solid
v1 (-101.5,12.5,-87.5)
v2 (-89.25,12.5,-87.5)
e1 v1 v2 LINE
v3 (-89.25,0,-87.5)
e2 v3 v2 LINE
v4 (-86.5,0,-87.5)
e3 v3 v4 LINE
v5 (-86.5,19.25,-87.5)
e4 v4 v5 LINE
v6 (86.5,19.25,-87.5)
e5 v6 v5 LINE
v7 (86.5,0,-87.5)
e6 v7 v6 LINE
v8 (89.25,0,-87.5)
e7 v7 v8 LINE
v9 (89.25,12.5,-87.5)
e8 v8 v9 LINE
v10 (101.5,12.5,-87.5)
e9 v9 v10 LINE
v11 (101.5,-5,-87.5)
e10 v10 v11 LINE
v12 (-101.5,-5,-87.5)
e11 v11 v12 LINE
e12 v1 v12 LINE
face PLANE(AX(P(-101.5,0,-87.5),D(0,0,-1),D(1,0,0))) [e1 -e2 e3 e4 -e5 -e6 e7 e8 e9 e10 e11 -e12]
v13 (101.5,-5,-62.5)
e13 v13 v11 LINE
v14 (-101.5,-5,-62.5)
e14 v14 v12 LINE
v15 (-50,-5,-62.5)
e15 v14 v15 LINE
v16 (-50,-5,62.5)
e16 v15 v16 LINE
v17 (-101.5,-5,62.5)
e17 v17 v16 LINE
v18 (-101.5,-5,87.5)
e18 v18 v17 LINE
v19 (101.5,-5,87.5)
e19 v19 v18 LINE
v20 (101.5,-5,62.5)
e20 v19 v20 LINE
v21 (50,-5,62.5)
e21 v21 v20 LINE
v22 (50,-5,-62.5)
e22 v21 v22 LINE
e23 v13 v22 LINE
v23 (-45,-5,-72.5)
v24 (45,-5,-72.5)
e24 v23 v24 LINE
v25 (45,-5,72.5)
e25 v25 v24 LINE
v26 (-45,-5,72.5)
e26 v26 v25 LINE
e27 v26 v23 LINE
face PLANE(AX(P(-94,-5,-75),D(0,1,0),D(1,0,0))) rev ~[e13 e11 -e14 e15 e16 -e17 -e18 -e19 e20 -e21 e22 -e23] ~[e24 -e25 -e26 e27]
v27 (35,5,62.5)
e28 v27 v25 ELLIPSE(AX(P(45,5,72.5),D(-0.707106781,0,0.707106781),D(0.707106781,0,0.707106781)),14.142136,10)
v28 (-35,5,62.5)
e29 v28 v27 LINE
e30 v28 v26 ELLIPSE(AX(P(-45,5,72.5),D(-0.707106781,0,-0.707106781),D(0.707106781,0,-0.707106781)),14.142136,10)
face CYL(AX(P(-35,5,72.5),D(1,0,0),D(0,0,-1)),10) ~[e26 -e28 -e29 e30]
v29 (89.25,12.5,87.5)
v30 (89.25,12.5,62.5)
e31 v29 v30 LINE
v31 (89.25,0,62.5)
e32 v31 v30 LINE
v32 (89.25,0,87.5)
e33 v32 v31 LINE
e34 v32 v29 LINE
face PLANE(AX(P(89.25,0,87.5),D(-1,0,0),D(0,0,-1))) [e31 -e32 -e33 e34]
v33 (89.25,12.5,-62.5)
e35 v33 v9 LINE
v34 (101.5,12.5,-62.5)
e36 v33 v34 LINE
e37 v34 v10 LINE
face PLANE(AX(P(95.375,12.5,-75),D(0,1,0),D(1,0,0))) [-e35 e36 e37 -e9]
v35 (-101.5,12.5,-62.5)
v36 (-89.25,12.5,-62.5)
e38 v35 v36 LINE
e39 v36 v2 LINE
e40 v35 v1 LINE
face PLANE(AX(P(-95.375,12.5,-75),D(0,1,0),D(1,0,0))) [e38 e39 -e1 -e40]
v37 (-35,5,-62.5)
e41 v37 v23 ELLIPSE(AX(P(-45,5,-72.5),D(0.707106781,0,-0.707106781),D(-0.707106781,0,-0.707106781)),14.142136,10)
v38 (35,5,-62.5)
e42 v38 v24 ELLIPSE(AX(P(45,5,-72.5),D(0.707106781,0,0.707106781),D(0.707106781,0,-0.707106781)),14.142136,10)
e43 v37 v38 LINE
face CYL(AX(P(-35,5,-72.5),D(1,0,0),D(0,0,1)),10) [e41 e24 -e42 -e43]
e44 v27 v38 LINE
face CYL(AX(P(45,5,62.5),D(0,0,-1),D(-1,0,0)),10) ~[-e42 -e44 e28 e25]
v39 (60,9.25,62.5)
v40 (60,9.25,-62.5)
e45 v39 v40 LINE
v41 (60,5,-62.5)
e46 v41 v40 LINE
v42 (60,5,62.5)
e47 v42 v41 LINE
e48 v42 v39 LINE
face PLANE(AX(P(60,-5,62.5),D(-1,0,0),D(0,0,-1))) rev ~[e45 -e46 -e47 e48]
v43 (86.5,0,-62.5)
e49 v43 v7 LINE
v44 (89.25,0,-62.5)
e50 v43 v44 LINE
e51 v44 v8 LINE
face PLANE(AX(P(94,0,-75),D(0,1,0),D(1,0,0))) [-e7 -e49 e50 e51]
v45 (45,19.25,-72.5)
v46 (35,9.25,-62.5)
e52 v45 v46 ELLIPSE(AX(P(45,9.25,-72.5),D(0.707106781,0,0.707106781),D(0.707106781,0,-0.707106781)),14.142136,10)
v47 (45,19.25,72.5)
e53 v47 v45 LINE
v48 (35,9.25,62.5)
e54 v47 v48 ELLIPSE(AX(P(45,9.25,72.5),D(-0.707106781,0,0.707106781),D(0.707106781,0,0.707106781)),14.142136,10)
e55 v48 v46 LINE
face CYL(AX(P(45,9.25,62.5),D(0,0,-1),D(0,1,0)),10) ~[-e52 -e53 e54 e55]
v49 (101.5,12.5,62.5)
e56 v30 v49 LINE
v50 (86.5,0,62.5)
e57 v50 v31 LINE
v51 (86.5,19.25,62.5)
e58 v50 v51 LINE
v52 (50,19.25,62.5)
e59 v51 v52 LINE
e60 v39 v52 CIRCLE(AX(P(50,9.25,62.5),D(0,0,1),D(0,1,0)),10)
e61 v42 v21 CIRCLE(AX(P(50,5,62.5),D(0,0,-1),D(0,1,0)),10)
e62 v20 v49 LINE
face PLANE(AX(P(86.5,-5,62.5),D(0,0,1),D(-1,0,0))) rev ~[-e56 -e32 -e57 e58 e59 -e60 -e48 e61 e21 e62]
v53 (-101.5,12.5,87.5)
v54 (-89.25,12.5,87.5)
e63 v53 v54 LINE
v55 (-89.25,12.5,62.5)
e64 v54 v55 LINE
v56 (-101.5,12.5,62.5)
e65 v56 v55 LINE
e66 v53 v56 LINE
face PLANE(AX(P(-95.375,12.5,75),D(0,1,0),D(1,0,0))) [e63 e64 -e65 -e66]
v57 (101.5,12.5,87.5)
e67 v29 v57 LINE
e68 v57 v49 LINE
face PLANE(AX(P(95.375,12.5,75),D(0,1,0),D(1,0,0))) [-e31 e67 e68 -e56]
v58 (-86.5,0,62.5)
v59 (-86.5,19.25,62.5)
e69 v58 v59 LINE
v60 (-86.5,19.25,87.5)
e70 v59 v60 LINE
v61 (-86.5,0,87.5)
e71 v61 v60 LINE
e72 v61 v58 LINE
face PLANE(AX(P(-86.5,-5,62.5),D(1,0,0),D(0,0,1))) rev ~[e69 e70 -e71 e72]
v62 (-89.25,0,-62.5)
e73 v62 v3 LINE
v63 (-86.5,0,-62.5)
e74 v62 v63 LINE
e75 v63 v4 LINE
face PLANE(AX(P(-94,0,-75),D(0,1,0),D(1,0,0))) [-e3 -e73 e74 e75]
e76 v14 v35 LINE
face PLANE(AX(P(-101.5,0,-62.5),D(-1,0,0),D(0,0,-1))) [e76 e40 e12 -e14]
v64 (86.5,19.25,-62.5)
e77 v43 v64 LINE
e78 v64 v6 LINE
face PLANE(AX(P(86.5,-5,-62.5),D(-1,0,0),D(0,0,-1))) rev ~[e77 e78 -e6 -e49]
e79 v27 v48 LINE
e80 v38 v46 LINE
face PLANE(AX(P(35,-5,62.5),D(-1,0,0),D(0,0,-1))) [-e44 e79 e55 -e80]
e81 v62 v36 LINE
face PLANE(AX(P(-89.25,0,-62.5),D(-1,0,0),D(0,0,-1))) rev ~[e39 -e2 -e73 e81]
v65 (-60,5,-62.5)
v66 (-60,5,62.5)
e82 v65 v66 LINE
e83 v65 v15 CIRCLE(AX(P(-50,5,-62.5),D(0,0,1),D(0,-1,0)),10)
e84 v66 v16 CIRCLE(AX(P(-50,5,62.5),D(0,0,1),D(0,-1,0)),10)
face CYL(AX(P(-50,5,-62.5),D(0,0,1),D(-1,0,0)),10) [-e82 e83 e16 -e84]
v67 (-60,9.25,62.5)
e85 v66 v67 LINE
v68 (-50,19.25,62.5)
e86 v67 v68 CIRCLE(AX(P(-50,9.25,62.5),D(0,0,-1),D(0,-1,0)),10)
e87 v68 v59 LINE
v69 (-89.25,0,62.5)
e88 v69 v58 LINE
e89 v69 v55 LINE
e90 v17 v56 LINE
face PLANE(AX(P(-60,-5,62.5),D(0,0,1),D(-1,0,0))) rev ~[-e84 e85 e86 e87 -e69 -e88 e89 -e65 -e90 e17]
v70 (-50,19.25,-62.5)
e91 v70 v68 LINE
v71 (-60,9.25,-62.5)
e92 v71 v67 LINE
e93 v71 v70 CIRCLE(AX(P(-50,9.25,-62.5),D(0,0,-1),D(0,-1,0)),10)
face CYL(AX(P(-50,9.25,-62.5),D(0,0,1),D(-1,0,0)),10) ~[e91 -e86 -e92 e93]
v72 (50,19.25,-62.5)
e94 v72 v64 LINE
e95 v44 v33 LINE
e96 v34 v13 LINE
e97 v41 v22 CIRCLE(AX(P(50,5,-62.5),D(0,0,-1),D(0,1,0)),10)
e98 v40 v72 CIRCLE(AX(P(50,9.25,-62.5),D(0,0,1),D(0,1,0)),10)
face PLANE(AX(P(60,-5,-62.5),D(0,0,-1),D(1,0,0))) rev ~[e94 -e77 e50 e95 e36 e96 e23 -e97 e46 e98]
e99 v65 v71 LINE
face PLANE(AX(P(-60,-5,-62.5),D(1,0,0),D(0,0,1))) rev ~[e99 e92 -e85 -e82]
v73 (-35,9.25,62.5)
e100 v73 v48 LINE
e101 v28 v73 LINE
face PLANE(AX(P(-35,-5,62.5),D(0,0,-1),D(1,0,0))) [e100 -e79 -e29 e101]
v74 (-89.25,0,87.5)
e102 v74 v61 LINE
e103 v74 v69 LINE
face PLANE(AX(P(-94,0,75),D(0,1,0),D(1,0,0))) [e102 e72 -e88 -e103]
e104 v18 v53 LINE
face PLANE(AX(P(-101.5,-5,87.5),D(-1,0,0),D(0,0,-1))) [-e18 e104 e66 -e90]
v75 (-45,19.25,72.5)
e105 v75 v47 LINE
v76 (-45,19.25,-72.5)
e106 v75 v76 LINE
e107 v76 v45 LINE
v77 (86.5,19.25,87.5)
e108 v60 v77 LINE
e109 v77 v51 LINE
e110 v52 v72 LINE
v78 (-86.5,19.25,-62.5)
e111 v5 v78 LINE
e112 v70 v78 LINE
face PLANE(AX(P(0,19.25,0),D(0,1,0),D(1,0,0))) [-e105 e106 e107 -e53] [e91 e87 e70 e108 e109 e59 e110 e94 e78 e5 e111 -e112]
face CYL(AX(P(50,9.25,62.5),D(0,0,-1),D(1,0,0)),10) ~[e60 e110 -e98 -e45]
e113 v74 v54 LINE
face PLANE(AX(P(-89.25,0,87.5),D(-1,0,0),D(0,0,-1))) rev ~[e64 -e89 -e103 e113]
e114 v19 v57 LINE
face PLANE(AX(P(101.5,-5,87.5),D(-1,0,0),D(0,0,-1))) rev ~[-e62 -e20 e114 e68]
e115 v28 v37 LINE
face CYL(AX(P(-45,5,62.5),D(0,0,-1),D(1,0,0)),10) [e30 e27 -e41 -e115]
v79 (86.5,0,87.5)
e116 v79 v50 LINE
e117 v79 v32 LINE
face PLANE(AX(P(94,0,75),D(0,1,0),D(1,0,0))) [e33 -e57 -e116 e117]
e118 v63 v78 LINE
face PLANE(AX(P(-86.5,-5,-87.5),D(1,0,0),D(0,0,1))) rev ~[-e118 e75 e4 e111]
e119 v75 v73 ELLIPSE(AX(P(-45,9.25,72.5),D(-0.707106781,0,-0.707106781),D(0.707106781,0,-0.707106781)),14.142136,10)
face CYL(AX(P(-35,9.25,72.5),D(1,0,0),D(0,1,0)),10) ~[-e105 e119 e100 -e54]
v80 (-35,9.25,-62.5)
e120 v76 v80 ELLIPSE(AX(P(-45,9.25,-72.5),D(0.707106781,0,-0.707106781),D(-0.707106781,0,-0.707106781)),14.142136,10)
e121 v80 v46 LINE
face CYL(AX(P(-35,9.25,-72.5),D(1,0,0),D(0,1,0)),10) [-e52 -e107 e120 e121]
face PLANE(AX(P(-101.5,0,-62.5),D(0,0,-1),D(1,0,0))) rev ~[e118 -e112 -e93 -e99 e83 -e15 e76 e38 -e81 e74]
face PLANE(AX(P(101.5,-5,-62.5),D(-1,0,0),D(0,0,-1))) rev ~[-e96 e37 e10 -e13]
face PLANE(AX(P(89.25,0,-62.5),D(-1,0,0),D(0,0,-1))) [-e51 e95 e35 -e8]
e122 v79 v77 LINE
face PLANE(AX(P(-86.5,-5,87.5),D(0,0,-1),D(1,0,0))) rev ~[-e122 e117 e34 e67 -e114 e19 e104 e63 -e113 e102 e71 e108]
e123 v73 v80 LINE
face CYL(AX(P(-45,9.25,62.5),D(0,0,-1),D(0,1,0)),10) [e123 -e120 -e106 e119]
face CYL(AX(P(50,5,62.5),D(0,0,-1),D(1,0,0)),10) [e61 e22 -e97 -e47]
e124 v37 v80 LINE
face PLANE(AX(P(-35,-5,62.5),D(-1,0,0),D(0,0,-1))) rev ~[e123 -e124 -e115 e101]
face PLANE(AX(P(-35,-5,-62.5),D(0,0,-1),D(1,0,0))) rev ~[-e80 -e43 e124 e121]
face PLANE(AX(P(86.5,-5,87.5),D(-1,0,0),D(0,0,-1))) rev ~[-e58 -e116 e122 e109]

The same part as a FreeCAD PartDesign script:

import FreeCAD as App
import Part
import Sketcher
from FreeCAD import Vector


def edges_at(feature, points):
    """Names of the edges that pass closest to the given points."""
    edges = feature.Shape.Edges
    near = lambda p: min(range(len(edges)), key=lambda i: edges[i].distToShape(Part.Vertex(*p))[0])
    return sorted({f"Edge{near(p) + 1}" for p in points})


def add_polygon(sketch, points):
    """Adds a closed chain of lines whose ends are joined by coincident constraints."""
    first, n = sketch.GeometryCount, len(points)
    for a, b in zip(points, points[1:] + points[:1]):
        sketch.addGeometry(Part.LineSegment(App.Vector(*a, 0), App.Vector(*b, 0)), False)
    for i in range(n):
        sketch.addConstraint(Sketcher.Constraint("Coincident", first + i, 2, first + (i + 1) % n, 1))

doc = App.newDocument("Part")
body = doc.addObject("PartDesign::Body", "Body")

sketch1 = body.newObject("Sketcher::SketchObject", "Sketch")
sketch1.AttachmentSupport = (doc.getObject("XZ_Plane"), [""])
sketch1.MapMode = "FlatFace"
add_polygon(sketch1, [(-60, -62), (-60, 62), (-86, 62), (-86, 88), (86, 88), (86, 62), (60, 62), (60, -62), (86, -62), (86, -88), (-86, -88), (-86, -62)])
add_polygon(sketch1, [(35, 62), (-35, 62), (-35, -62), (35, -62)])
sketch1.addConstraint(Sketcher.Constraint("Vertical", 0))
sketch1.addConstraint(Sketcher.Constraint("Horizontal", 1))
sketch1.addConstraint(Sketcher.Constraint("Vertical", 2))
sketch1.addConstraint(Sketcher.Constraint("Horizontal", 3))
sketch1.addConstraint(Sketcher.Constraint("Vertical", 4))
sketch1.addConstraint(Sketcher.Constraint("Horizontal", 5))
sketch1.addConstraint(Sketcher.Constraint("Vertical", 6))
sketch1.addConstraint(Sketcher.Constraint("Horizontal", 7))
sketch1.addConstraint(Sketcher.Constraint("Vertical", 8))
sketch1.addConstraint(Sketcher.Constraint("Horizontal", 9))
sketch1.addConstraint(Sketcher.Constraint("Vertical", 10))
sketch1.addConstraint(Sketcher.Constraint("Horizontal", 11))
sketch1.addConstraint(Sketcher.Constraint("Horizontal", 12))
sketch1.addConstraint(Sketcher.Constraint("Vertical", 13))
sketch1.addConstraint(Sketcher.Constraint("Horizontal", 14))
sketch1.addConstraint(Sketcher.Constraint("Vertical", 15))
sketch1.addConstraint(Sketcher.Constraint("Symmetric", 0, 2, 6, 2, -1, 1))
sketch1.addConstraint(Sketcher.Constraint("Symmetric", 2, 2, 8, 2, -1, 1))
sketch1.addConstraint(Sketcher.Constraint("Symmetric", 4, 2, 10, 2, -1, 1))
sketch1.addConstraint(Sketcher.Constraint("Symmetric", 12, 2, 14, 2, -1, 1))
sketch1.addConstraint(Sketcher.Constraint("Symmetric", 1, 2, 4, 2, -2))
sketch1.addConstraint(Sketcher.Constraint("Horizontal", 5, 2, 12, 2))
sketch1.addConstraint(Sketcher.Constraint("DistanceX", 3, 1, 3, 2, 173.0))
sketch1.addConstraint(Sketcher.Constraint("DistanceX", 12, 2, 12, 1, 70.0))
sketch1.addConstraint(Sketcher.Constraint("DistanceY", 0, 1, 0, 2, 125.0))
sketch1.addConstraint(Sketcher.Constraint("DistanceY", 2, 1, 2, 2, 25.0))
sketch1.addConstraint(Sketcher.Constraint("DistanceX", 1, 2, 1, 1, 26.5))
pad1 = body.newObject("PartDesign::Pad", "Pad")
pad1.Profile = sketch1
pad1.Type = "TwoLengths"
pad1.Length = 19.25
pad1.Length2 = 5
pad1.Reversed = True

sketch2 = body.newObject("Sketcher::SketchObject", "Sketch001")
sketch2.AttachmentSupport = (doc.getObject("XZ_Plane"), [""])
sketch2.MapMode = "FlatFace"
sketch2.AttachmentOffset = App.Placement(Vector(0, 0, 5), App.Rotation())
add_polygon(sketch2, [(-102, -88), (-102, -62), (-86, -62), (-86, -88)])
add_polygon(sketch2, [(86, -88), (86, -62), (102, -62), (102, -88)])
add_polygon(sketch2, [(-102, 62), (-102, 88), (-86, 88), (-86, 62)])
add_polygon(sketch2, [(86, 62), (86, 88), (102, 88), (102, 62)])
sketch2.addConstraint(Sketcher.Constraint("Vertical", 0))
sketch2.addConstraint(Sketcher.Constraint("Horizontal", 1))
sketch2.addConstraint(Sketcher.Constraint("Vertical", 2))
sketch2.addConstraint(Sketcher.Constraint("Horizontal", 3))
sketch2.addConstraint(Sketcher.Constraint("Vertical", 4))
sketch2.addConstraint(Sketcher.Constraint("Horizontal", 5))
sketch2.addConstraint(Sketcher.Constraint("Vertical", 6))
sketch2.addConstraint(Sketcher.Constraint("Horizontal", 7))
sketch2.addConstraint(Sketcher.Constraint("Vertical", 8))
sketch2.addConstraint(Sketcher.Constraint("Horizontal", 9))
sketch2.addConstraint(Sketcher.Constraint("Vertical", 10))
sketch2.addConstraint(Sketcher.Constraint("Horizontal", 11))
sketch2.addConstraint(Sketcher.Constraint("Vertical", 12))
sketch2.addConstraint(Sketcher.Constraint("Horizontal", 13))
sketch2.addConstraint(Sketcher.Constraint("Vertical", 14))
sketch2.addConstraint(Sketcher.Constraint("Horizontal", 15))
sketch2.addConstraint(Sketcher.Constraint("Symmetric", 6, 2, 8, 2, -1, 1))
sketch2.addConstraint(Sketcher.Constraint("Symmetric", 4, 2, 10, 2, -1, 1))
sketch2.addConstraint(Sketcher.Constraint("Symmetric", 2, 2, 12, 2, -1, 1))
sketch2.addConstraint(Sketcher.Constraint("Symmetric", 0, 2, 14, 2, -1, 1))
sketch2.addConstraint(Sketcher.Constraint("Symmetric", 1, 2, 4, 2, -2))
sketch2.addConstraint(Sketcher.Constraint("Symmetric", 3, 2, 6, 2, -2))
sketch2.addConstraint(Sketcher.Constraint("DistanceX", 1, 1, 1, 2, 15.0))
sketch2.addConstraint(Sketcher.Constraint("DistanceY", 0, 1, 0, 2, 25.0))
sketch2.addConstraint(Sketcher.Constraint("DistanceX", 1, 2, 4, 2, 173.0))
sketch2.addConstraint(Sketcher.Constraint("DistanceY", 0, 2, 8, 2, 150.0))
pad2 = body.newObject("PartDesign::Pad", "Pad001")
pad2.Profile = sketch2
pad2.Length = 5
pad2.Reversed = True

sketch3 = body.newObject("Sketcher::SketchObject", "Sketch002")
sketch3.AttachmentSupport = (doc.getObject("XZ_Plane"), [""])
sketch3.MapMode = "FlatFace"
add_polygon(sketch3, [(-102, -88), (-102, -62), (-89, -62), (-89, -88)])
add_polygon(sketch3, [(89, -88), (89, -62), (102, -62), (102, -88)])
add_polygon(sketch3, [(-102, 62), (-102, 88), (-89, 88), (-89, 62)])
add_polygon(sketch3, [(89, 62), (89, 88), (102, 88), (102, 62)])
sketch3.addConstraint(Sketcher.Constraint("Vertical", 0))
sketch3.addConstraint(Sketcher.Constraint("Horizontal", 1))
sketch3.addConstraint(Sketcher.Constraint("Vertical", 2))
sketch3.addConstraint(Sketcher.Constraint("Horizontal", 3))
sketch3.addConstraint(Sketcher.Constraint("Vertical", 4))
sketch3.addConstraint(Sketcher.Constraint("Horizontal", 5))
sketch3.addConstraint(Sketcher.Constraint("Vertical", 6))
sketch3.addConstraint(Sketcher.Constraint("Horizontal", 7))
sketch3.addConstraint(Sketcher.Constraint("Vertical", 8))
sketch3.addConstraint(Sketcher.Constraint("Horizontal", 9))
sketch3.addConstraint(Sketcher.Constraint("Vertical", 10))
sketch3.addConstraint(Sketcher.Constraint("Horizontal", 11))
sketch3.addConstraint(Sketcher.Constraint("Vertical", 12))
sketch3.addConstraint(Sketcher.Constraint("Horizontal", 13))
sketch3.addConstraint(Sketcher.Constraint("Vertical", 14))
sketch3.addConstraint(Sketcher.Constraint("Horizontal", 15))
sketch3.addConstraint(Sketcher.Constraint("Symmetric", 6, 2, 8, 2, -1, 1))
sketch3.addConstraint(Sketcher.Constraint("Symmetric", 4, 2, 10, 2, -1, 1))
sketch3.addConstraint(Sketcher.Constraint("Symmetric", 2, 2, 12, 2, -1, 1))
sketch3.addConstraint(Sketcher.Constraint("Symmetric", 0, 2, 14, 2, -1, 1))
sketch3.addConstraint(Sketcher.Constraint("Symmetric", 1, 2, 4, 2, -2))
sketch3.addConstraint(Sketcher.Constraint("Symmetric", 3, 2, 6, 2, -2))
sketch3.addConstraint(Sketcher.Constraint("DistanceY", 0, 1, 0, 2, 25.0))
sketch3.addConstraint(Sketcher.Constraint("DistanceX", 0, 2, 5, 2, 203.0))
sketch3.addConstraint(Sketcher.Constraint("DistanceY", 0, 2, 8, 2, 150.0))
sketch3.addConstraint(Sketcher.Constraint("DistanceX", 1, 1, 1, 2, 12.25))
pad3 = body.newObject("PartDesign::Pad", "Pad002")
pad3.Profile = sketch3
pad3.Length = 12.5
pad3.Reversed = True
doc.recompute()

fillet = body.newObject("PartDesign::Fillet", "Fillet")
fillet.Base = (pad3, edges_at(pad3, [
    (0, 19.25, 62.5),
    (60, 19.25, 0),
    (35, 19.25, 0),
    (-60, 19.25, 0),
    (-35, 19.25, 0),
    (0, 19.25, -62.5),
    (0, -5, 62.5),
    (-35, -5, 0),
    (0, -5, -62.5),
    (35, -5, 0),
    (60, -5, 0),
    (-60, -5, 0),
]))
fillet.Radius = 10

doc.recompute()
